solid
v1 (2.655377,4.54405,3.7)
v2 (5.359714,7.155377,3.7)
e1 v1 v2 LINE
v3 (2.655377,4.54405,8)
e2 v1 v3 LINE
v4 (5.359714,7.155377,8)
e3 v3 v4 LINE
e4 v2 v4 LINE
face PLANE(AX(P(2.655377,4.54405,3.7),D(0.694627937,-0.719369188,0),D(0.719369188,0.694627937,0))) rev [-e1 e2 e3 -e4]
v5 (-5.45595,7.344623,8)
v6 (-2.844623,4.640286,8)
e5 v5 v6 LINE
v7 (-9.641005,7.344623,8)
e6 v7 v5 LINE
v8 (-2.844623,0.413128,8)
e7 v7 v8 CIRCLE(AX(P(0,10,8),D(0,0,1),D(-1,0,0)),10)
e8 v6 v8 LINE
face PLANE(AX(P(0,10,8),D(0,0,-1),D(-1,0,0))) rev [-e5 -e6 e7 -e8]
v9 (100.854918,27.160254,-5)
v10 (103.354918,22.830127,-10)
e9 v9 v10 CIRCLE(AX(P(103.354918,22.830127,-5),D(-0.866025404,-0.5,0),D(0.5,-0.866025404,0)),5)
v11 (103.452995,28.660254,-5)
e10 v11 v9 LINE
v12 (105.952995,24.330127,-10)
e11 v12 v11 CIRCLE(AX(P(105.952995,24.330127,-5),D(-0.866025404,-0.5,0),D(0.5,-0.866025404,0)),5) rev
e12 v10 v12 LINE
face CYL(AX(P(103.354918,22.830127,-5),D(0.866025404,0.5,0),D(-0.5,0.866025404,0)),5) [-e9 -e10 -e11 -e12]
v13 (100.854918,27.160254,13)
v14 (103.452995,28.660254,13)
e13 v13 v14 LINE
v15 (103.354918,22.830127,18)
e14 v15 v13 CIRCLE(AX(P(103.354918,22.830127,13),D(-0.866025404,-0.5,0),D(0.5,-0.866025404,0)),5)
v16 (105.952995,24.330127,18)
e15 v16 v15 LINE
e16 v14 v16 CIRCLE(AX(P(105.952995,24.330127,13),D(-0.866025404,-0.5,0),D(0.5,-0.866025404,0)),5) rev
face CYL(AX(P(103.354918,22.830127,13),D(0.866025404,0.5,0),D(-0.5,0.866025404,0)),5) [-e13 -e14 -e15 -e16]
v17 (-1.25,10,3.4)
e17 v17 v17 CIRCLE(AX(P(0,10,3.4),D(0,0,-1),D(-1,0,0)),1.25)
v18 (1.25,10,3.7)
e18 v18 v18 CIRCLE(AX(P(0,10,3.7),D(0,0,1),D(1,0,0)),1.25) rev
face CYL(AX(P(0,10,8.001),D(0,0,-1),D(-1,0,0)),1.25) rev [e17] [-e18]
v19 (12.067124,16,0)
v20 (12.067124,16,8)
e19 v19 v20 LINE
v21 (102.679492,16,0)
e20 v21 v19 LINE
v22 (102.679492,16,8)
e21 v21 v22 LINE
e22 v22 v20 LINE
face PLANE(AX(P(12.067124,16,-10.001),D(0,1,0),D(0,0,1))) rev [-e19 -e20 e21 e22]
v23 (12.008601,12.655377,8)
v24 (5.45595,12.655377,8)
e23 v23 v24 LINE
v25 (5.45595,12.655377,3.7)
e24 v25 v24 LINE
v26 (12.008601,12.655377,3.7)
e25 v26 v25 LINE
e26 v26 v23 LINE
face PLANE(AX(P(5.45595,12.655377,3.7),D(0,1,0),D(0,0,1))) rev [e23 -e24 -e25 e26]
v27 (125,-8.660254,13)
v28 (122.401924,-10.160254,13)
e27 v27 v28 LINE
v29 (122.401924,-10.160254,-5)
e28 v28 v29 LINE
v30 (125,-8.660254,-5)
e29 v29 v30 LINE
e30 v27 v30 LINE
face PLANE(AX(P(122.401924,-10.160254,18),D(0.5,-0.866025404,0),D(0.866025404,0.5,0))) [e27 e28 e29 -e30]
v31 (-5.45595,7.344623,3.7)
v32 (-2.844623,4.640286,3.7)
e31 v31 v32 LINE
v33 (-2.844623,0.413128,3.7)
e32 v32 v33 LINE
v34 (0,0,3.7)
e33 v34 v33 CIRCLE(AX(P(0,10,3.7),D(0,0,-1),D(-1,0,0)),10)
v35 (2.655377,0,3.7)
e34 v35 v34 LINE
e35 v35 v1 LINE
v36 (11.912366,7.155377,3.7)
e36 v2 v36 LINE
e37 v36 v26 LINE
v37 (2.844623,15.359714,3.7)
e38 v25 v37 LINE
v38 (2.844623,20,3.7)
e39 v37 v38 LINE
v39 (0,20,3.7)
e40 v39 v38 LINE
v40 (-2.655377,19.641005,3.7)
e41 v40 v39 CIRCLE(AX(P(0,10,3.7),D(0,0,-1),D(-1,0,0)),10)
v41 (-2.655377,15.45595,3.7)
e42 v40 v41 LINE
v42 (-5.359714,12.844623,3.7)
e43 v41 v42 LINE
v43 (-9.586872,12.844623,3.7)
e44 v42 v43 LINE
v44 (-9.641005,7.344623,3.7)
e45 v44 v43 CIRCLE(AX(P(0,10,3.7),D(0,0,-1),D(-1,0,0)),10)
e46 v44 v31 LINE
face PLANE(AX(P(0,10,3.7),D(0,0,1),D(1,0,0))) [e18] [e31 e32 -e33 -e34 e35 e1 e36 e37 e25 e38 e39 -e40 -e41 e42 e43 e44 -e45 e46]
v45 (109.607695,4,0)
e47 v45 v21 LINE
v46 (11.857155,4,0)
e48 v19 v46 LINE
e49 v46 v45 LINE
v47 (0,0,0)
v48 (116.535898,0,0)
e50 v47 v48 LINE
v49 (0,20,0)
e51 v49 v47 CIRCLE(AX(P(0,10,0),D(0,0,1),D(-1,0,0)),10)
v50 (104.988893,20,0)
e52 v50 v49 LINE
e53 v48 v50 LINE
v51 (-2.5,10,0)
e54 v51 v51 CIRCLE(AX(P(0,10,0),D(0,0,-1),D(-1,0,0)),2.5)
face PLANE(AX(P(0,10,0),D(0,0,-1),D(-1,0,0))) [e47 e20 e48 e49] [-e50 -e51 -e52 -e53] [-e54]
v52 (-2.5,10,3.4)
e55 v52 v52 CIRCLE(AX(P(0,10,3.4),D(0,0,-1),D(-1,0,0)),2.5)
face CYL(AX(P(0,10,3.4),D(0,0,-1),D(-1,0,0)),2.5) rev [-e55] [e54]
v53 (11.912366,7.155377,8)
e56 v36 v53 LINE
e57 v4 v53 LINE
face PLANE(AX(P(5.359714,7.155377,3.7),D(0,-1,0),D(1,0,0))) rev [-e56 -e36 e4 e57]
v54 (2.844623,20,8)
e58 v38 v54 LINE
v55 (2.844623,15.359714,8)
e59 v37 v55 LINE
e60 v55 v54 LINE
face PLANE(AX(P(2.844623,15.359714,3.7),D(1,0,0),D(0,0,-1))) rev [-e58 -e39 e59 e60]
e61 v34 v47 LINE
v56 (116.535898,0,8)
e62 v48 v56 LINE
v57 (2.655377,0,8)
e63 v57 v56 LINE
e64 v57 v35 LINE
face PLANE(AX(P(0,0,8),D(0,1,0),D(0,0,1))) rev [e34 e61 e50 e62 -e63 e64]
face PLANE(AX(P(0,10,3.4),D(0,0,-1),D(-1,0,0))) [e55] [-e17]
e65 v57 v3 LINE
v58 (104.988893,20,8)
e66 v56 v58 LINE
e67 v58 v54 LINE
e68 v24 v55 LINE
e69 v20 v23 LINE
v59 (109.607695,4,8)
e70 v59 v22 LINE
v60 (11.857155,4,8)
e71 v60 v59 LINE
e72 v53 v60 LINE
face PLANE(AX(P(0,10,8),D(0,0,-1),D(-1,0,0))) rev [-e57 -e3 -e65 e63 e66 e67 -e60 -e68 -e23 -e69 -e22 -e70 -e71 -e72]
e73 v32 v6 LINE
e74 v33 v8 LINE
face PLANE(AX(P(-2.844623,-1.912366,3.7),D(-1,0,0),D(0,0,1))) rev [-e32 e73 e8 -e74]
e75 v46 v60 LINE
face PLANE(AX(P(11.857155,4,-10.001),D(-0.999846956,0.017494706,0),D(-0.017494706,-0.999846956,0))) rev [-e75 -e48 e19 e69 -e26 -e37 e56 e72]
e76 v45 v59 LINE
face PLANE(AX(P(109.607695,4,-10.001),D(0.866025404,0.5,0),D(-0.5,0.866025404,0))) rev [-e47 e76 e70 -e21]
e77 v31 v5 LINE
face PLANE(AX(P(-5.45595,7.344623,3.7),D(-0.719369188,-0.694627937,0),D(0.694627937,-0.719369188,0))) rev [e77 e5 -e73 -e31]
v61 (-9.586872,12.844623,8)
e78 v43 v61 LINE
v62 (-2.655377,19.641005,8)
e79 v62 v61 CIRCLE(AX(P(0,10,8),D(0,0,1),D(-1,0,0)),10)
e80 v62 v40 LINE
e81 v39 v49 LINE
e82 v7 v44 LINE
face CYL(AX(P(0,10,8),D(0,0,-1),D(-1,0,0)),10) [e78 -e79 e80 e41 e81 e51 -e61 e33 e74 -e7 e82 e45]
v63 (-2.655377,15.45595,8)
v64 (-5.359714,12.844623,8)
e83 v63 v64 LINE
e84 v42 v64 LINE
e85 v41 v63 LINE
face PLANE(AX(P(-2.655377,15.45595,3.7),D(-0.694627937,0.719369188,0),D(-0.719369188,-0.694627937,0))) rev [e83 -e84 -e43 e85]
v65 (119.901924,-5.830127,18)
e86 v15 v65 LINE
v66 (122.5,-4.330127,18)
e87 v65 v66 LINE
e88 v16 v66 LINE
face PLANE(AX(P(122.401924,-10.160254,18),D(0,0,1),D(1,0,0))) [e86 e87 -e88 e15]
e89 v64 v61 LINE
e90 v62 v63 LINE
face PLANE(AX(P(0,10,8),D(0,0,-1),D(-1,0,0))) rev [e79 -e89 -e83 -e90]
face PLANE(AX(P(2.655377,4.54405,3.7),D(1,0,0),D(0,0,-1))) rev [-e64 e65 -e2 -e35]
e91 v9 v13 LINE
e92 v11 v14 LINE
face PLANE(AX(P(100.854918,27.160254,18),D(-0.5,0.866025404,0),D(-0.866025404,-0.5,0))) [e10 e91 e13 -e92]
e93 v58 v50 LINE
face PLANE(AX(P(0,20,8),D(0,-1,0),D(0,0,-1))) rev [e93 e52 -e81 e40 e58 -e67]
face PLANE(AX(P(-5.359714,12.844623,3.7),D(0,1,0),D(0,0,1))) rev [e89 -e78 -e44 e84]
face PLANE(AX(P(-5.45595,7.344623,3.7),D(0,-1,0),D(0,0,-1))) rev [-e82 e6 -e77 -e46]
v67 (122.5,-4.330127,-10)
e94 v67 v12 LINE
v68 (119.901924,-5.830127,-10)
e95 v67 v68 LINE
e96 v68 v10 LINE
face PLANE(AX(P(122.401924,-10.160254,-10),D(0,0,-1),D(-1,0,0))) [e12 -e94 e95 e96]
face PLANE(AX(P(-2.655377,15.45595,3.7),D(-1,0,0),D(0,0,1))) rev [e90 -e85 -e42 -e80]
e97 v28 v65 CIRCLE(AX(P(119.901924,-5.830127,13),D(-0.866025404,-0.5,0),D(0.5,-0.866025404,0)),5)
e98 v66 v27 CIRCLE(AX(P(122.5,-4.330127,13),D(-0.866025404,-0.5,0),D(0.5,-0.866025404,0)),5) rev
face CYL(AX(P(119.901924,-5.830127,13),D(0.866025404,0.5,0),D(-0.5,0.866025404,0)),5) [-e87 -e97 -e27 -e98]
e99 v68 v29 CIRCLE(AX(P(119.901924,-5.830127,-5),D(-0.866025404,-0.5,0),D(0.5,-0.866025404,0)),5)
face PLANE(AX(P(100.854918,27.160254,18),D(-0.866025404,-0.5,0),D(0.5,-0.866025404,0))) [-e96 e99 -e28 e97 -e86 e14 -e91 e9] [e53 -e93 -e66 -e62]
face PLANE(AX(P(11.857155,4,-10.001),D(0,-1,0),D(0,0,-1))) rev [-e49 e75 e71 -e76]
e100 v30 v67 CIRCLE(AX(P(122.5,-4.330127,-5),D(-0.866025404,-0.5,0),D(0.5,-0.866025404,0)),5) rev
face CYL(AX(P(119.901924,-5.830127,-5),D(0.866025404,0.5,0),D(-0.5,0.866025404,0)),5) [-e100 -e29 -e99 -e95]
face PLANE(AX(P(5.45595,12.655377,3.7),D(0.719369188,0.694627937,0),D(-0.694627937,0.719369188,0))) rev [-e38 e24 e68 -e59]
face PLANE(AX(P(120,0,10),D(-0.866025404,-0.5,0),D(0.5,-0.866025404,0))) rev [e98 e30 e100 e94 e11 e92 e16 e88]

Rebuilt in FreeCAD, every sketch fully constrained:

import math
import FreeCAD as App
import Part
import Sketcher
Q = App.Units.Quantity


def edges_at(feature, points):
    """Names of the edges that pass closest to the given points."""
    edges = feature.Shape.Edges
    near = lambda p: min(range(len(edges)), key=lambda i: edges[i].distToShape(Part.Vertex(*p))[0])
    return sorted({f"Edge{near(p) + 1}" for p in points})


def add_polygon(sketch, points):
    """Adds a closed chain of lines whose ends are joined by coincident constraints."""
    first, n = sketch.GeometryCount, len(points)
    for a, b in zip(points, points[1:] + points[:1]):
        sketch.addGeometry(Part.LineSegment(App.Vector(*a, 0), App.Vector(*b, 0)), False)
    for i in range(n):
        sketch.addConstraint(Sketcher.Constraint("Coincident", first + i, 2, first + (i + 1) % n, 1))

doc = App.newDocument("Part")
body = doc.addObject("PartDesign::Body", "Body")

# Sketch on XY plane
sketch1 = body.newObject("Sketcher::SketchObject", "Sketch")
sketch1.AttachmentSupport = (doc.getObject("XY_Plane"), [""])
sketch1.MapMode = "FlatFace"
sketch1.addGeometry([
    Part.LineSegment(App.Vector(0, 0, 0), App.Vector(120, 0, 0)),
    Part.ArcOfCircle(Part.Circle(App.Vector(120, 10, 0), App.Vector(0, 0, 1), 10), math.radians(-90), math.radians(90)),
    Part.LineSegment(App.Vector(120, 20, 0), App.Vector(0, 20, 0)),
    Part.ArcOfCircle(Part.Circle(App.Vector(0, 10, 0), App.Vector(0, 0, 1), 10), math.radians(90), math.radians(270)),
], False)
sketch1.addConstraint([
    Sketcher.Constraint("Tangent", 0, 2, 1, 1),
    Sketcher.Constraint("Tangent", 1, 2, 2, 1),
    Sketcher.Constraint("Tangent", 2, 2, 3, 1),
    Sketcher.Constraint("Tangent", 3, 2, 0, 1),
    Sketcher.Constraint("Horizontal", 0),
    Sketcher.Constraint("Horizontal", 2),
    Sketcher.Constraint("Coincident", 3, 2, -1, 1),
    Sketcher.Constraint("Radius", 1, 10.0),
    Sketcher.Constraint("DistanceX", 0, 1, 0, 2, 120.0),
])
pad1 = body.newObject("PartDesign::Pad", "Pad")
pad1.Profile = sketch1
pad1.Length = 8

# Sketch on XY plane
sketch2 = body.newObject("Sketcher::SketchObject", "Sketch001")
sketch2.AttachmentSupport = (doc.getObject("XY_Plane"), [""])
sketch2.MapMode = "FlatFace"
sketch2.AttachmentOffset = App.Placement(App.Vector(0, 0, 8), App.Rotation())
sketch2.addGeometry(Part.Circle(App.Vector(0, 10, 0), App.Vector(0, 0, 1), 4), False)
sketch2.addConstraint([
    Sketcher.Constraint("PointOnObject", 0, 3, -2),
    Sketcher.Constraint("Diameter", 0, 8.0),
    Sketcher.Constraint("DistanceY", -1, 1, 0, 3, 10.0),
])
pocket1 = body.newObject("PartDesign::Pocket", "Pocket")
pocket1.Profile = sketch2
pocket1.Length = 4.3

# Sketch on XY plane
sketch3 = body.newObject("Sketcher::SketchObject", "Sketch002")
sketch3.AttachmentSupport = (doc.getObject("XY_Plane"), [""])
sketch3.MapMode = "FlatFace"
sketch3.AttachmentOffset = App.Placement(App.Vector(0, 0, 8), App.Rotation())
add_polygon(sketch3, [(2.655377, -2.008601), (2.655377, 4.54405), (5.359714, 7.155377), (11.912366, 7.155377), (12.008601, 12.655377), (5.45595, 12.655377), (2.844623, 15.359714), (2.844623, 21.912366), (-2.655377, 22.008601), (-2.655377, 15.45595), (-5.359714, 12.844623), (-11.912366, 12.844623), (-12.008601, 7.344623), (-5.45595, 7.344623), (-2.844623, 4.640286), (-2.844623, -1.912366)])  # lines 0-15
sketch3.addConstraint([
    Sketcher.Constraint("Vertical", 0),
    Sketcher.Constraint("Horizontal", 2),
    Sketcher.Constraint("Horizontal", 4),
    Sketcher.Constraint("Vertical", 6),
    Sketcher.Constraint("Vertical", 8),
    Sketcher.Constraint("Horizontal", 10),
    Sketcher.Constraint("Horizontal", 12),
    Sketcher.Constraint("Vertical", 14),
    Sketcher.Constraint("Perpendicular", 1, 5),
    Sketcher.Constraint("Perpendicular", 3, 7),
    Sketcher.Constraint("Perpendicular", 5, 9),
    Sketcher.Constraint("Perpendicular", 7, 11),
    Sketcher.Constraint("Perpendicular", 9, 13),
    Sketcher.Constraint("Perpendicular", 11, 15),
    Sketcher.Constraint("Equal", 2, 4),
    Sketcher.Constraint("Equal", 4, 10),
    Sketcher.Constraint("Equal", 10, 12),
    Sketcher.Constraint("Equal", 12, 0),
    Sketcher.Constraint("Equal", 0, 6),
    Sketcher.Constraint("Equal", 6, 8),
    Sketcher.Constraint("Equal", 8, 14),
    Sketcher.Constraint("Equal", 1, 5),
    Sketcher.Constraint("Equal", 3, 7),
    Sketcher.Constraint("Equal", 5, 9),
    Sketcher.Constraint("Equal", 7, 11),
    Sketcher.Constraint("DistanceY", 2, 2, 3, 2, 5.5),
    Sketcher.Constraint("DistanceX", 2, 1, 2, 2, 6.552652),
    Sketcher.Constraint("DistanceX", -1, 1, 3, 2, 12.008601),
    Sketcher.Constraint("DistanceY", -1, 1, 7, 2, 22.008601),
    Sketcher.Constraint("DistanceX", 11, 2, -1, 1, 12.008601),
    Sketcher.Constraint("Distance", 3, 5.500842),
    Sketcher.Constraint("DistanceX", 0, 2, 2, 2, 9.256989),
])
pocket2 = body.newObject("PartDesign::Pocket", "Pocket001")
pocket2.Profile = sketch3
pocket2.Length = 4.3

# Sketch on XY plane
sketch4 = body.newObject("Sketcher::SketchObject", "Sketch003")
sketch4.AttachmentSupport = (doc.getObject("XY_Plane"), [""])
sketch4.MapMode = "FlatFace"
sketch4.addGeometry(Part.Circle(App.Vector(0, 10, 0), App.Vector(0, 0, 1), 2.5), False)
sketch4.addConstraint([
    Sketcher.Constraint("PointOnObject", 0, 3, -2),
    Sketcher.Constraint("Diameter", 0, 5.0),
    Sketcher.Constraint("DistanceY", -1, 1, 0, 3, 10.0),
])
pocket3 = body.newObject("PartDesign::Pocket", "Pocket002")
pocket3.Profile = sketch4
pocket3.Length = 3.4
pocket3.Reversed = True

# Sketch on XY plane
sketch5 = body.newObject("Sketcher::SketchObject", "Sketch004")
sketch5.AttachmentSupport = (doc.getObject("XY_Plane"), [""])
sketch5.MapMode = "FlatFace"
sketch5.AttachmentOffset = App.Placement(App.Vector(0, 0, 3.4), App.Rotation())
sketch5.addGeometry(Part.Circle(App.Vector(0, 10, 0), App.Vector(0, 0, 1), 1.25), False)
sketch5.addConstraint([
    Sketcher.Constraint("PointOnObject", 0, 3, -2),
    Sketcher.Constraint("Diameter", 0, 2.5),
    Sketcher.Constraint("DistanceY", -1, 1, 0, 3, 10.0),
])
pocket4 = body.newObject("PartDesign::Pocket", "Pocket003")
pocket4.Profile = sketch5
pocket4.Type = "UpToFirst"
pocket4.Reversed = True

# Sketch on XY plane
sketch6 = body.newObject("Sketcher::SketchObject", "Sketch005")
sketch6.AttachmentSupport = (doc.getObject("XY_Plane"), [""])
sketch6.MapMode = "FlatFace"
sketch6.AttachmentOffset = App.Placement(App.Vector(0, 0, 8), App.Rotation())
add_polygon(sketch6, [(120, 20), (120, 0), (130, 0), (130, 20)])  # lines 0-3
sketch6.addConstraint([
    Sketcher.Constraint("Vertical", 0),
    Sketcher.Constraint("Horizontal", 1),
    Sketcher.Constraint("Vertical", 2),
    Sketcher.Constraint("Horizontal", 3),
    Sketcher.Constraint("PointOnObject", 0, 2, -1),
    Sketcher.Constraint("DistanceX", 1, 1, 1, 2, 10.0),
    Sketcher.Constraint("DistanceY", 0, 2, 0, 1, 20.0),
    Sketcher.Constraint("DistanceX", -1, 1, 0, 2, 120.0),
])
pocket5 = body.newObject("PartDesign::Pocket", "Pocket004")
pocket5.Profile = sketch6
pocket5.Length = 10

# Sketch on XY plane
sketch7 = body.newObject("Sketcher::SketchObject", "Sketch006")
sketch7.AttachmentSupport = (doc.getObject("XY_Plane"), [""])
sketch7.MapMode = "FlatFace"
add_polygon(sketch7, [(131.547005, 0), (120, 0), (108.452995, 20), (120, 20)])  # lines 0-3
sketch7.addConstraint([
    Sketcher.Constraint("Horizontal", 0),
    Sketcher.Constraint("Horizontal", 2),
    Sketcher.Constraint("PointOnObject", 0, 2, -1),
    Sketcher.Constraint("Parallel", 1, 3),
    Sketcher.Constraint("Vertical", 0, 2, 2, 2),
    Sketcher.Constraint("Angle", 1, Q("120 deg")),
    Sketcher.Constraint("DistanceX", -1, 1, 0, 2, 120.0),
    Sketcher.Constraint("DistanceY", -1, 1, 1, 2, 20.0),
])
pocket6 = body.newObject("PartDesign::Pocket", "Pocket005")
pocket6.Profile = sketch7
pocket6.Length = 10
pocket6.Reversed = True

# Sketch on an angled plane
sketch8 = body.newObject("Sketcher::SketchObject", "Sketch007")
sketch8.Placement = App.Placement(App.Vector(90, 51.961524, 0), App.Rotation(App.Vector(0, 0, -1), App.Vector(-0.5, 0.866025404, 0), App.Vector(0.866025404, 0.5, 0), "ZXY"))
add_polygon(sketch8, [(-18, -26.905989), (-18, -70), (10, -70), (10, -26.905989)])  # lines 0-3
sketch8.addConstraint([
    Sketcher.Constraint("Vertical", 0),
    Sketcher.Constraint("Horizontal", 1),
    Sketcher.Constraint("Vertical", 2),
    Sketcher.Constraint("Horizontal", 3),
    Sketcher.Constraint("DistanceX", 1, 1, 1, 2, 28.0),
    Sketcher.Constraint("DistanceX", 0, 2, -1, 1, 18.0),
    Sketcher.Constraint("DistanceY", 0, 2, -1, 1, 70.0),
    Sketcher.Constraint("DistanceY", 0, 2, 0, 1, 43.094011),
])
pad2 = body.newObject("PartDesign::Pad", "Pad001")
pad2.Profile = sketch8
pad2.Length = 3
pad2.Reversed = True

# Sketch on XY plane
sketch9 = body.newObject("Sketcher::SketchObject", "Sketch008")
sketch9.AttachmentSupport = (doc.getObject("XY_Plane"), [""])
sketch9.MapMode = "FlatFace"
sketch9.AttachmentOffset = App.Placement(App.Vector(0, 0, 8), App.Rotation())
add_polygon(sketch9, [(11.857155, 4), (109.607695, 4), (102.679492, 16), (12.067124, 16)])  # lines 0-3
sketch9.addConstraint([
    Sketcher.Constraint("Horizontal", 0),
    Sketcher.Constraint("Horizontal", 2),
    Sketcher.Constraint("Angle", 1, Q("120 deg")),
    Sketcher.Constraint("DistanceY", -1, 1, 0, 2, 4.0),
    Sketcher.Constraint("DistanceY", -1, 1, 1, 2, 16.0),
    Sketcher.Constraint("DistanceX", 0, 1, 0, 2, 97.75054),
    Sketcher.Constraint("DistanceX", 2, 2, 2, 1, 90.612368),
    Sketcher.Constraint("DistanceX", -1, 1, 1, 2, 102.679492),
])
pocket7 = body.newObject("PartDesign::Pocket", "Pocket006")
pocket7.Profile = sketch9
pocket7.Type = "UpToFirst"
doc.recompute()

fillet = body.newObject("PartDesign::Fillet", "Fillet")
fillet.Base = (pocket7, edges_at(pocket7, [
    (123.701, -9.41, 18),
    (102.154, 27.91, 18),
    (102.154, 27.91, -10),
    (123.701, -9.41, -10),
]))
fillet.Radius = 5

doc.recompute()
